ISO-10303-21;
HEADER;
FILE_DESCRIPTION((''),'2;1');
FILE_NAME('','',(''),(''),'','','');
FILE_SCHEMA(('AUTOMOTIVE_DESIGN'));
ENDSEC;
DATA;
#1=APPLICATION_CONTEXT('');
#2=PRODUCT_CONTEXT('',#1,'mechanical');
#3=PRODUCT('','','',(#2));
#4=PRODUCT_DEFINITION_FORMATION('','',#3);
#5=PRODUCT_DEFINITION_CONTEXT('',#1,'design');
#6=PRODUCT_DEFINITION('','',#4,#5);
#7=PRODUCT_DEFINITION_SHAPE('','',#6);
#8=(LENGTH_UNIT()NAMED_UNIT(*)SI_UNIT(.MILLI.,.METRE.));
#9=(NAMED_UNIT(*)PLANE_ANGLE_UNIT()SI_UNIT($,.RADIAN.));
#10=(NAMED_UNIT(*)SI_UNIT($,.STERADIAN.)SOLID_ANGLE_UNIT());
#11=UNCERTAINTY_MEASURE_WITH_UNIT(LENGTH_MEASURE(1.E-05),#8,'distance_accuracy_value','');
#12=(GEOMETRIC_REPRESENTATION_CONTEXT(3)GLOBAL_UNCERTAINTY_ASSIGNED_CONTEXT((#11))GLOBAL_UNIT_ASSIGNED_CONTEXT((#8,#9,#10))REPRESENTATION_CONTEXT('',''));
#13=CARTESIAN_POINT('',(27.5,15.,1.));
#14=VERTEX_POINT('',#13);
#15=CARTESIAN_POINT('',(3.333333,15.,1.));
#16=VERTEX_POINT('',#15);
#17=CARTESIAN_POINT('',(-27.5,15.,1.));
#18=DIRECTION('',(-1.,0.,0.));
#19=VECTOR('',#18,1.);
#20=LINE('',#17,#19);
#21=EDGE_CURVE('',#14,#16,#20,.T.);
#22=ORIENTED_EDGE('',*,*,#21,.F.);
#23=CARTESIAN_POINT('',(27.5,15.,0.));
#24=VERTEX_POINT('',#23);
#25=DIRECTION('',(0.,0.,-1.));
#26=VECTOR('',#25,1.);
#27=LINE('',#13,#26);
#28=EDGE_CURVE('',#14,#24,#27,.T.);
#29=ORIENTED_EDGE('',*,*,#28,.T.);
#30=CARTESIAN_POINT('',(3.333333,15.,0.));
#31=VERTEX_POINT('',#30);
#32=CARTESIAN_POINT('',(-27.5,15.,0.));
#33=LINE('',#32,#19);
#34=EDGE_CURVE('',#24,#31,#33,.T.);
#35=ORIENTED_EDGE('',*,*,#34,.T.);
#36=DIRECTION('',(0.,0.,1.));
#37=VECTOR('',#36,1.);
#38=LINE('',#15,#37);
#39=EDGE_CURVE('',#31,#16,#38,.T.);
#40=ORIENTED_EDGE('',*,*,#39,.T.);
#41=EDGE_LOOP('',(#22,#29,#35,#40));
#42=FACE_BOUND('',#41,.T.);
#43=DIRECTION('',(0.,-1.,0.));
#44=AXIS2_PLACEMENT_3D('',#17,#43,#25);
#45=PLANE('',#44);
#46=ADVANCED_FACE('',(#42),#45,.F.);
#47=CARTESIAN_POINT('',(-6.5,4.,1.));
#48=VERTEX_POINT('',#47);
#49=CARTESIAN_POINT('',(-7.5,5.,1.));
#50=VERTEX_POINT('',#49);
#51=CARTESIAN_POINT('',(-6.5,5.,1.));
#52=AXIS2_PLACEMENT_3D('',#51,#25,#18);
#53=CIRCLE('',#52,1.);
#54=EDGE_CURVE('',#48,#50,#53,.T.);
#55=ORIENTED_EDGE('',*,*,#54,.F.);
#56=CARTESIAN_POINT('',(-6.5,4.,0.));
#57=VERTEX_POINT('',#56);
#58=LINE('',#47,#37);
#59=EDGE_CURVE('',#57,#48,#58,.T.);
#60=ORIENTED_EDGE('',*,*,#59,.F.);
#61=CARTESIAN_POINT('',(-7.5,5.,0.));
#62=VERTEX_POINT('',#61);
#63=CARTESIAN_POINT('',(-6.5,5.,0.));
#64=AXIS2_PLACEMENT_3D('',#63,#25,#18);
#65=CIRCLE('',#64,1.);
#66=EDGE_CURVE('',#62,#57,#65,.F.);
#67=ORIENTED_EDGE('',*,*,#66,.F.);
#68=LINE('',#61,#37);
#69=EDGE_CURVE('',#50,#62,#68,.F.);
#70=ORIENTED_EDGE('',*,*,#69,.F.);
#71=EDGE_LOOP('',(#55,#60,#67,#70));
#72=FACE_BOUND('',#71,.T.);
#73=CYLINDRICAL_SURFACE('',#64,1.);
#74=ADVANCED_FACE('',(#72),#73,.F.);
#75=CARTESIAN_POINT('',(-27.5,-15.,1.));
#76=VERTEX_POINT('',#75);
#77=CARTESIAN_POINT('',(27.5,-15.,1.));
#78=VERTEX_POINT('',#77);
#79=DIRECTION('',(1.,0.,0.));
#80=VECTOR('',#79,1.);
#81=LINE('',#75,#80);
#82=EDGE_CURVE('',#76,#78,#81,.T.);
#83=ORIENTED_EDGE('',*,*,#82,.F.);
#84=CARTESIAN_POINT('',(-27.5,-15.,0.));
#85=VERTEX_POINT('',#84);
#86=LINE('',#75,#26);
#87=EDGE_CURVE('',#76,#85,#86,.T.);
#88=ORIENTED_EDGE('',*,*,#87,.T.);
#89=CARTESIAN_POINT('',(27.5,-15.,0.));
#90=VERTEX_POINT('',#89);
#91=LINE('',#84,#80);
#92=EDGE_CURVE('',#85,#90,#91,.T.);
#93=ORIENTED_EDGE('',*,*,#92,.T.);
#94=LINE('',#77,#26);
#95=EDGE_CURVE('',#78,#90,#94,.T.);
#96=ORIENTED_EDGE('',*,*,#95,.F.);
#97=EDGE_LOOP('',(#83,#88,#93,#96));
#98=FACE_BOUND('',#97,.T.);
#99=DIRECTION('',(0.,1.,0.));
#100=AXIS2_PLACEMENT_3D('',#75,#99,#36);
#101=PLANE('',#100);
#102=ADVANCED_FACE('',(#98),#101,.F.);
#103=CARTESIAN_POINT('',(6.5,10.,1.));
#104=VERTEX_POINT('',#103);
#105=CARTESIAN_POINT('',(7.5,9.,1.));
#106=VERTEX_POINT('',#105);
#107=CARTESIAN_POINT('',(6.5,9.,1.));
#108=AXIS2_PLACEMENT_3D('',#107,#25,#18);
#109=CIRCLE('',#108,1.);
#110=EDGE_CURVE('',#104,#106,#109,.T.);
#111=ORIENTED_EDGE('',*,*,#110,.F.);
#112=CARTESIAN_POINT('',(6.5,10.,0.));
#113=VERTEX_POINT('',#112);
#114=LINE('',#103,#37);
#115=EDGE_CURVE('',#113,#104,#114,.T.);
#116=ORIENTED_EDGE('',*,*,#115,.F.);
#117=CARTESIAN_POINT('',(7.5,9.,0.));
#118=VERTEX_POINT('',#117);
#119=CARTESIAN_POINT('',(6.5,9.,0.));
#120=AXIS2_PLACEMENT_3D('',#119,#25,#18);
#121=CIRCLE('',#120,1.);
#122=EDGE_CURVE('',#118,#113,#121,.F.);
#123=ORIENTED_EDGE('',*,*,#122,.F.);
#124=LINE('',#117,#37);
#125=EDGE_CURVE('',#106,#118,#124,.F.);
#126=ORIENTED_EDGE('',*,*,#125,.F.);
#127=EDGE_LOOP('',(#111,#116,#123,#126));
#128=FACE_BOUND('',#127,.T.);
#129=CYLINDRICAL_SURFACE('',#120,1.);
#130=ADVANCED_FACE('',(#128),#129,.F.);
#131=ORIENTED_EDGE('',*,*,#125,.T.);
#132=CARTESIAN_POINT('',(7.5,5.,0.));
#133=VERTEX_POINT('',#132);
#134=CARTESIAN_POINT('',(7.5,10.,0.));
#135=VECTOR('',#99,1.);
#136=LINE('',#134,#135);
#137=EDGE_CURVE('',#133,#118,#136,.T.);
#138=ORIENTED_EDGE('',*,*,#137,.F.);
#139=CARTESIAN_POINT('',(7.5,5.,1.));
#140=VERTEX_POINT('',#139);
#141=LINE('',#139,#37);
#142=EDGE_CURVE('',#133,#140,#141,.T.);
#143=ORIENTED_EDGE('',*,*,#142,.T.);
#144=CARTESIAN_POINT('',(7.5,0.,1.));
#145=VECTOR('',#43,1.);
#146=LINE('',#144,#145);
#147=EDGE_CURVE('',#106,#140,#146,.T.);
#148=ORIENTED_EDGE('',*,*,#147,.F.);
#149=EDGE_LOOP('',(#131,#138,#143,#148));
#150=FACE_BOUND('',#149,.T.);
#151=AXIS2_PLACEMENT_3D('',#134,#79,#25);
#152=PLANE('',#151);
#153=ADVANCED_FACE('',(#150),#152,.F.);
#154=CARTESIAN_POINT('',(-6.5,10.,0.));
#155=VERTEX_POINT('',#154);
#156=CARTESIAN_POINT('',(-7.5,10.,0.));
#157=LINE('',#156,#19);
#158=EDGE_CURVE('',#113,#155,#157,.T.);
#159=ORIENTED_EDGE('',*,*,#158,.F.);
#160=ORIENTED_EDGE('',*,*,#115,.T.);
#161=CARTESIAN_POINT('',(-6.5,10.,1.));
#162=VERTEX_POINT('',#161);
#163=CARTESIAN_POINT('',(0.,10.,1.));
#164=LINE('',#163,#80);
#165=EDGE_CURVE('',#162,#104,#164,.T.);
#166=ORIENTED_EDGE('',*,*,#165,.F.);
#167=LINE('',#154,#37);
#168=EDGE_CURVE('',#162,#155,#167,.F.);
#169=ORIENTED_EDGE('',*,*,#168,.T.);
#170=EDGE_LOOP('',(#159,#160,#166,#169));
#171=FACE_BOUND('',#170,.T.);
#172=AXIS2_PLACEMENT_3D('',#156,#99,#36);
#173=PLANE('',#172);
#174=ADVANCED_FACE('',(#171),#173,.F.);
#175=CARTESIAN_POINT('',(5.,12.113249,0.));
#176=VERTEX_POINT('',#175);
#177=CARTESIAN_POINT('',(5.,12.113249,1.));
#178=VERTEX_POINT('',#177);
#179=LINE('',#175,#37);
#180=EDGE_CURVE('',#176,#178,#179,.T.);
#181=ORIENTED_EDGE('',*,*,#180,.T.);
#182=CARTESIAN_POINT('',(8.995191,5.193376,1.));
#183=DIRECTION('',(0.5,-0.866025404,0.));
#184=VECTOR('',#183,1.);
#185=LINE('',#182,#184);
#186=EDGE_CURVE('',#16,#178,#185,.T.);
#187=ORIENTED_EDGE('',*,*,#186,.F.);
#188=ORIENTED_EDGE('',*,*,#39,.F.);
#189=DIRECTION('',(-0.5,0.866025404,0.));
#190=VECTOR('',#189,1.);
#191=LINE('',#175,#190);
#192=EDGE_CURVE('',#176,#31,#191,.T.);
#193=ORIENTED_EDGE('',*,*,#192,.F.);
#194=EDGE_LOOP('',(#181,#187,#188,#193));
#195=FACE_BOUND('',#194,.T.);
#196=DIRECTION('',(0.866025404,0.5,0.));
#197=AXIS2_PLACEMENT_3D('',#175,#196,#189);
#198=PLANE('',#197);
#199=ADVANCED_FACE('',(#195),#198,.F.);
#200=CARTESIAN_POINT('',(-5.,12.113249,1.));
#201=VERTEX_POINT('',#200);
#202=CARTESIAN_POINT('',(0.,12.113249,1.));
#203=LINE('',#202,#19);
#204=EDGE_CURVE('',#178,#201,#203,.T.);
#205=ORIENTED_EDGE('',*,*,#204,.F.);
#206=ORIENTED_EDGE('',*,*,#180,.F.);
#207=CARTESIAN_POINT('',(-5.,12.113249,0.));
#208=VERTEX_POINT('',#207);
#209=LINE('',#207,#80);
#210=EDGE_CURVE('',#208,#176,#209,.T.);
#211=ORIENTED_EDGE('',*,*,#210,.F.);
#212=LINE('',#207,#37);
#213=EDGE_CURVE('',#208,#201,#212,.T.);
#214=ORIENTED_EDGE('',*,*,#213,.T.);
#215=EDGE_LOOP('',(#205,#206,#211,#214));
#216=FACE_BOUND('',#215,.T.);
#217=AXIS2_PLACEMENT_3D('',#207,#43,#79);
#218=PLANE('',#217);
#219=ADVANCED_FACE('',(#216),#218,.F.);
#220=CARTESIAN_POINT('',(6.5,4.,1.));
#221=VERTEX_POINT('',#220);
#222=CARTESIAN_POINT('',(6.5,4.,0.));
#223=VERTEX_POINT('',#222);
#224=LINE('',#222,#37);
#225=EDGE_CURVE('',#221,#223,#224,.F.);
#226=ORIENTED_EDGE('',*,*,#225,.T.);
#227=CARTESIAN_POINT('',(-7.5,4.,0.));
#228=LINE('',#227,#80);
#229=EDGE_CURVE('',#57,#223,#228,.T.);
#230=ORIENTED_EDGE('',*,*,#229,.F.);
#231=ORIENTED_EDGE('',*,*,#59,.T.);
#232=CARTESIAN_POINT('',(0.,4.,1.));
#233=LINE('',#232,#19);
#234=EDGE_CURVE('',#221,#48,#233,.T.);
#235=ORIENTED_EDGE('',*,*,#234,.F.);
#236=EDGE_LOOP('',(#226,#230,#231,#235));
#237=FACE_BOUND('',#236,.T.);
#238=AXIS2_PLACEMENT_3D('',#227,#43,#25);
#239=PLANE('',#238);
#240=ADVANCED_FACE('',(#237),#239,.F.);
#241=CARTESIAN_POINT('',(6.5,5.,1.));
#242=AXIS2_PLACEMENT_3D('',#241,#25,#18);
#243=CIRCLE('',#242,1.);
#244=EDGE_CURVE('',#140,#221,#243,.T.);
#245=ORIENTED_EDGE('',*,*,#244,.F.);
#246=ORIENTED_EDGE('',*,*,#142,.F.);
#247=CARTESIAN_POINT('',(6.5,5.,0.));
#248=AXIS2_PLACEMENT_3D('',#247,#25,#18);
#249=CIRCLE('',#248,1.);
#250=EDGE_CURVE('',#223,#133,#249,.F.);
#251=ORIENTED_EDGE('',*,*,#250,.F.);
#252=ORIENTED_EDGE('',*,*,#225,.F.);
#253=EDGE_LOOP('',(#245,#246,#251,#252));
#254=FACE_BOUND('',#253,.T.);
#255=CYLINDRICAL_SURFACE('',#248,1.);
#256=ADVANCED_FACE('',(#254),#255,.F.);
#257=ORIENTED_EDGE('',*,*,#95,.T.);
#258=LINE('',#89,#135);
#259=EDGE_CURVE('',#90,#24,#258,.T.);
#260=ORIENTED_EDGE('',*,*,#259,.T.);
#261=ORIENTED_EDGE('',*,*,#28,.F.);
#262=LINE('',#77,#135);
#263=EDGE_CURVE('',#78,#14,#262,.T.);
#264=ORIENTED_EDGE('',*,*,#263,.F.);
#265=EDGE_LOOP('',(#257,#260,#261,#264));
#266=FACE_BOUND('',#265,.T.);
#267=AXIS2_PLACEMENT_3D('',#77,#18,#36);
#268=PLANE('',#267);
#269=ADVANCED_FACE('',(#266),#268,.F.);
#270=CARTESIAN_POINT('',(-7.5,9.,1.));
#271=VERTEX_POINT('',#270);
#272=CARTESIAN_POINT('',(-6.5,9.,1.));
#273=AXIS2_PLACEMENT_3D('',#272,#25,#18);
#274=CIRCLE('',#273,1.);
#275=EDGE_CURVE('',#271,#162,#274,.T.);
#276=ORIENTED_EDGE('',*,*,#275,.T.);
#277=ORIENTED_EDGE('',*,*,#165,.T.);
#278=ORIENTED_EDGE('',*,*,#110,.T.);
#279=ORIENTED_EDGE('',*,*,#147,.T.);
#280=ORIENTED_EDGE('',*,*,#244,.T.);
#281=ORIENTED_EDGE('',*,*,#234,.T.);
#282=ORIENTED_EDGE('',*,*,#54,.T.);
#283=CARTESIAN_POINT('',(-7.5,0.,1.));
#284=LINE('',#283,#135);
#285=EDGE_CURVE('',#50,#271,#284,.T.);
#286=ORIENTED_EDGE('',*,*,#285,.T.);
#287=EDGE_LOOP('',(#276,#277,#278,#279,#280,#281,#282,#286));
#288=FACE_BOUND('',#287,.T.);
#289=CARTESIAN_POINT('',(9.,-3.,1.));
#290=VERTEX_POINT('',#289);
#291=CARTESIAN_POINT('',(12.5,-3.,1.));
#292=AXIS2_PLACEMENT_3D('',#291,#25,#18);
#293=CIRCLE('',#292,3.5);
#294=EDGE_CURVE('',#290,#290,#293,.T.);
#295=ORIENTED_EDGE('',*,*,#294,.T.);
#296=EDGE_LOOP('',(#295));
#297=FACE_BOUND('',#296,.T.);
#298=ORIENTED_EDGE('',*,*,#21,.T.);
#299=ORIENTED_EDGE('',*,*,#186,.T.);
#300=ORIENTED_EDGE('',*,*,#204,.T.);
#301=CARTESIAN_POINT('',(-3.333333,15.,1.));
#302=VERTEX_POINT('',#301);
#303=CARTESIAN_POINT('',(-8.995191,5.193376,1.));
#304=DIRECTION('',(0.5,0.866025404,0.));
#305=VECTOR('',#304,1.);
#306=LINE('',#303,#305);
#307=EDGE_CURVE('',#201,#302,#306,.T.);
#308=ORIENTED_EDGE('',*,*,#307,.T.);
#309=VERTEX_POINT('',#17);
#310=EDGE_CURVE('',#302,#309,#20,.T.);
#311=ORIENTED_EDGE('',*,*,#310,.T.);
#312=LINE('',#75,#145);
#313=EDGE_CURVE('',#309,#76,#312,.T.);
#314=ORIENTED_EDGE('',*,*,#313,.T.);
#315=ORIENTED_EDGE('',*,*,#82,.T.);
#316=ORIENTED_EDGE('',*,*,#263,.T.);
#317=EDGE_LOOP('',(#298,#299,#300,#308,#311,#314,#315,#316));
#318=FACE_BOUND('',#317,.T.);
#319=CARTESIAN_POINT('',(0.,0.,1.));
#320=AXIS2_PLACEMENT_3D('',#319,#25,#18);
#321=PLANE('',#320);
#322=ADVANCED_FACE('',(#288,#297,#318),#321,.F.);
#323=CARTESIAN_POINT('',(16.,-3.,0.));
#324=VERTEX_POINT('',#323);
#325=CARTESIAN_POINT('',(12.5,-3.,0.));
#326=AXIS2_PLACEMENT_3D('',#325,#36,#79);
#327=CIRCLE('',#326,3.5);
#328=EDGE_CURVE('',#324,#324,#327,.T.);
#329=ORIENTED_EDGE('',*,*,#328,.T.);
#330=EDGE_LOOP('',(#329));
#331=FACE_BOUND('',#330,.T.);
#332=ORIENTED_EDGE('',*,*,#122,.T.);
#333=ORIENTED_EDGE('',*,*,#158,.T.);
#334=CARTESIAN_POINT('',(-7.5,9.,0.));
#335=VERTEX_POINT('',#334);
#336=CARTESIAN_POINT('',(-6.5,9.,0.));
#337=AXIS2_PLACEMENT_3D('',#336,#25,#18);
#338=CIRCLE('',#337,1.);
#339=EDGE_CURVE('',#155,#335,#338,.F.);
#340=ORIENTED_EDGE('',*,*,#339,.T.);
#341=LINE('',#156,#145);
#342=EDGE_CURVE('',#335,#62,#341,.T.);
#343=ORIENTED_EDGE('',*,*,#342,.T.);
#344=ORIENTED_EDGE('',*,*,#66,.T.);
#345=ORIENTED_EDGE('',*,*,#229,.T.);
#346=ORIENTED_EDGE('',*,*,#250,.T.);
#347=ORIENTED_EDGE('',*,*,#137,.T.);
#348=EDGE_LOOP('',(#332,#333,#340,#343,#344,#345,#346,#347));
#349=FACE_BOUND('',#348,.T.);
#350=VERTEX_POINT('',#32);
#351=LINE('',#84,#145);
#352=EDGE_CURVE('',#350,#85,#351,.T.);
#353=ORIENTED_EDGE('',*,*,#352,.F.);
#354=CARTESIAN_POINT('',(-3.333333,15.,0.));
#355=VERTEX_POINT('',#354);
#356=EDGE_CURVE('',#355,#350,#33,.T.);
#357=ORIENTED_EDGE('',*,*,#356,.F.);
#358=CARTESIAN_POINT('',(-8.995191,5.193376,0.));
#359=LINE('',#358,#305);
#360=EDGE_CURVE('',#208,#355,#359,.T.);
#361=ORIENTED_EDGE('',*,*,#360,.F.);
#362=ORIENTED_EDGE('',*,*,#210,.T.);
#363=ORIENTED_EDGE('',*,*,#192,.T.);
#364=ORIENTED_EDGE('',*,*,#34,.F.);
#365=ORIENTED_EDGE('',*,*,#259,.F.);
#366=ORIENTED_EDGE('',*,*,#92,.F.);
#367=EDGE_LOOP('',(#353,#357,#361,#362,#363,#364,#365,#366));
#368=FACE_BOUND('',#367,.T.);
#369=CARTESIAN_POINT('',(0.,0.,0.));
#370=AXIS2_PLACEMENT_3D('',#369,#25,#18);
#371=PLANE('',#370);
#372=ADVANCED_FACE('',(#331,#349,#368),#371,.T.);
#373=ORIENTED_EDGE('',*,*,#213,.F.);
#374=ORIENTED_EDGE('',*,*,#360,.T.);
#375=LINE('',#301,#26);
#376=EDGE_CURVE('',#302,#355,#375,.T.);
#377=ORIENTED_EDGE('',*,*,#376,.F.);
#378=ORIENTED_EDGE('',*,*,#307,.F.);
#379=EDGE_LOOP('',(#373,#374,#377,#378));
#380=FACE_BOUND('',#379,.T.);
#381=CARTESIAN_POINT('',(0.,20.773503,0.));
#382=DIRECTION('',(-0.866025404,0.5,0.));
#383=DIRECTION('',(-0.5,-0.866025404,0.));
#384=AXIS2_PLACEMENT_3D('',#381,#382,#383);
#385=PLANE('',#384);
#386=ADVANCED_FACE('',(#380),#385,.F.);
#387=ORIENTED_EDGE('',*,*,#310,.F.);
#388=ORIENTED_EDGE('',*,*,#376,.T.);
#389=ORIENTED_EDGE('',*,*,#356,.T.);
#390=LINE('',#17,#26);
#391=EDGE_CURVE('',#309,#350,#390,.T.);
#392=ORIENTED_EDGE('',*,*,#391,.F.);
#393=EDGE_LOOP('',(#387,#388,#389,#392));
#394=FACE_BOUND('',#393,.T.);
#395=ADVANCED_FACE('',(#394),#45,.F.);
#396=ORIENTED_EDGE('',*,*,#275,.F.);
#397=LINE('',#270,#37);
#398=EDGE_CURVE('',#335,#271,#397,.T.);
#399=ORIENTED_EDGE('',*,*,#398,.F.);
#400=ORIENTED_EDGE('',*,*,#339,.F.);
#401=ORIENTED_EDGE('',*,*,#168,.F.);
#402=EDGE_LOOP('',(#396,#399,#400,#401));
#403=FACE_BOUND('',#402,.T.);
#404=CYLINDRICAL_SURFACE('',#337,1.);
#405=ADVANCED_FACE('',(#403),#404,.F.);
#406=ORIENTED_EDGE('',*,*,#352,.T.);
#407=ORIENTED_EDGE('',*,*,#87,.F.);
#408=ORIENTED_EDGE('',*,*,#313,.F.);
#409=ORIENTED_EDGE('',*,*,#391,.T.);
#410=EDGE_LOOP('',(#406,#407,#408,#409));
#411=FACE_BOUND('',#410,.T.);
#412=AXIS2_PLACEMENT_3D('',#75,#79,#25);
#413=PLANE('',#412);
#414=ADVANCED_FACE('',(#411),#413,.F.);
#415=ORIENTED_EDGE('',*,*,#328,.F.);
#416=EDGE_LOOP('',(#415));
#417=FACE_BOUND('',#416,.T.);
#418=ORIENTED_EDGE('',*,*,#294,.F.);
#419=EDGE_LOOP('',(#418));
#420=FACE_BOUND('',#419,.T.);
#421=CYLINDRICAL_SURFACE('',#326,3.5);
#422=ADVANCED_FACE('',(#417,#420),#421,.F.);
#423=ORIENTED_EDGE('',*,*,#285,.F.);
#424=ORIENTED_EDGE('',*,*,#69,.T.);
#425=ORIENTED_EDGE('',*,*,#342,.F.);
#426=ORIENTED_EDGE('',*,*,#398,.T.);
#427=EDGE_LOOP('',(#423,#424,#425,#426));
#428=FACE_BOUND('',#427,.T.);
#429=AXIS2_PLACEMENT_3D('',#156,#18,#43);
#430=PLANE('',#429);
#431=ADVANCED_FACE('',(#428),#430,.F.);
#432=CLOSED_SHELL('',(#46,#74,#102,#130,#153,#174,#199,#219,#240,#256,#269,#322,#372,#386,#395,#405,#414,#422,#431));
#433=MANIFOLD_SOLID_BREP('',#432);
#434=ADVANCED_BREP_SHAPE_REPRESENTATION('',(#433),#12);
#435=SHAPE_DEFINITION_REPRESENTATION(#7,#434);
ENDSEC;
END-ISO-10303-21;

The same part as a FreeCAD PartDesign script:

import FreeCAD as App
import Part
import Sketcher

V = App.Vector
Q = App.Units.Quantity


def edges_at(feature, points):
    """Names of the edges that pass closest to the given points."""
    edges = feature.Shape.Edges
    near = lambda p: min(range(len(edges)), key=lambda i: edges[i].distToShape(Part.Vertex(*p))[0])
    return sorted({f"Edge{near(p) + 1}" for p in points})

doc = App.newDocument("Part")
params = doc.addObject("Spreadsheet::Sheet", "Params")
for row, (alias, value) in enumerate([
    ("sketch1_width", "55 mm"),
    ("sketch1_height", "30 mm"),
    ("pad1_length", "1 mm"),
    ("sketch2_diameter", "7 mm"),
    ("sketch2_width", "15 mm"),
    ("sketch2_width2", "10 mm"),
    ("sketch2_height", "6 mm"),
    ("fillet_radius", "1 mm"),
], start=1):
    params.set(f"A{row}", alias)
    params.set(f"B{row}", "=" + value)
    params.setAlias(f"B{row}", alias)

body = doc.addObject("PartDesign::Body", "Body")

# Sketch on XY plane
sketch1 = body.newObject("Sketcher::SketchObject", "Sketch")
sketch1.AttachmentSupport = (doc.getObject("XY_Plane"), [""])
sketch1.MapMode = "FlatFace"
sketch1.addGeometry([
    Part.LineSegment(V(-28, 15, 0), V(-28, -15, 0)),
    Part.LineSegment(V(-28, -15, 0), V(28, -15, 0)),
    Part.LineSegment(V(28, -15, 0), V(28, 15, 0)),
    Part.LineSegment(V(28, 15, 0), V(-28, 15, 0)),
], False)
sketch1.addConstraint([
    Sketcher.Constraint("Coincident", 0, 2, 1, 1),
    Sketcher.Constraint("Coincident", 1, 2, 2, 1),
    Sketcher.Constraint("Coincident", 2, 2, 3, 1),
    Sketcher.Constraint("Coincident", 3, 2, 0, 1),
    Sketcher.Constraint("Vertical", 0),
    Sketcher.Constraint("Horizontal", 1),
    Sketcher.Constraint("Vertical", 2),
    Sketcher.Constraint("Horizontal", 3),
    Sketcher.Constraint("Symmetric", 0, 2, 2, 2, -1, 1),
    Sketcher.Constraint("DistanceX", 1, 1, 1, 2, Q("55 mm")),
    Sketcher.Constraint("DistanceY", 0, 2, 0, 1, Q("30 mm")),
])
sketch1.setExpression("Constraints[9]", "Params.sketch1_width")
sketch1.setExpression("Constraints[10]", "Params.sketch1_height")
pad1 = body.newObject("PartDesign::Pad", "Pad")
pad1.Profile = sketch1
pad1.setExpression("Length", "Params.pad1_length")

# Sketch on XY plane
sketch2 = body.newObject("Sketcher::SketchObject", "Sketch001")
sketch2.AttachmentSupport = (doc.getObject("XY_Plane"), [""])
sketch2.MapMode = "FlatFace"
sketch2.AttachmentOffset = App.Placement(V(0, 0, 1), App.Rotation())
sketch2.addGeometry([
    Part.Circle(V(12.5, -3, 0), V(0, 0, 1), 3.5),  # 0
    Part.LineSegment(V(-7.5, 10, 0), V(-7.5, 4, 0)),  # 1
    Part.LineSegment(V(-7.5, 4, 0), V(7.5, 4, 0)),  # 2
    Part.LineSegment(V(7.5, 4, 0), V(7.5, 10, 0)),  # 3
    Part.LineSegment(V(7.5, 10, 0), V(-7.5, 10, 0)),  # 4
    Part.LineSegment(V(0, 20.8, 0), V(-5, 12.1, 0)),  # 5
    Part.LineSegment(V(-5, 12.1, 0), V(5, 12.1, 0)),  # 6
    Part.LineSegment(V(5, 12.1, 0), V(0, 20.8, 0)),  # 7
], False)
sketch2.addConstraint([
    Sketcher.Constraint("Coincident", 1, 2, 2, 1),
    Sketcher.Constraint("Coincident", 2, 2, 3, 1),
    Sketcher.Constraint("Coincident", 3, 2, 4, 1),
    Sketcher.Constraint("Coincident", 4, 2, 1, 1),
    Sketcher.Constraint("Coincident", 5, 2, 6, 1),
    Sketcher.Constraint("Coincident", 6, 2, 7, 1),
    Sketcher.Constraint("Coincident", 7, 2, 5, 1),
    Sketcher.Constraint("Vertical", 1),
    Sketcher.Constraint("Horizontal", 2),
    Sketcher.Constraint("Vertical", 3),
    Sketcher.Constraint("Horizontal", 4),
    Sketcher.Constraint("Horizontal", 6),
    Sketcher.Constraint("PointOnObject", 7, 2, -2),
    Sketcher.Constraint("Equal", 5, 7),
    Sketcher.Constraint("Diameter", 0, Q("7 mm")),
    Sketcher.Constraint("DistanceX", 2, 1, 2, 2, Q("15 mm")),
    Sketcher.Constraint("DistanceX", 6, 1, 6, 2, Q("10 mm")),
    Sketcher.Constraint("DistanceY", 1, 2, 1, 1, Q("6 mm")),
    Sketcher.Constraint("Angle", 5, Q("-120 deg")),
    Sketcher.Constraint("DistanceY", 0, 3, -1, 1, Q("3 mm")),
    Sketcher.Constraint("DistanceY", -1, 1, 1, 2, Q("4 mm")),
    Sketcher.Constraint("DistanceX", 1, 2, 0, 3, Q("20 mm")),
    Sketcher.Constraint("DistanceX", -1, 1, 0, 3, Q("12.5 mm")),
    Sketcher.Constraint("DistanceY", -1, 1, 5, 2, Q("12.113249 mm")),
])
sketch2.setExpression("Constraints[14]", "Params.sketch2_diameter")
sketch2.setExpression("Constraints[15]", "Params.sketch2_width")
sketch2.setExpression("Constraints[16]", "Params.sketch2_width2")
sketch2.setExpression("Constraints[17]", "Params.sketch2_height")
pocket1 = body.newObject("PartDesign::Pocket", "Pocket")
pocket1.Profile = sketch2
pocket1.Type = "ThroughAll"
pocket1.Midplane = True
doc.recompute()

fillet = body.newObject("PartDesign::Fillet", "Fillet")
fillet.Base = (pocket1, edges_at(pocket1, [
    (-7.5, 4, 0.5),
    (-7.5, 10, 0.5),
    (7.5, 10, 0.5),
    (7.5, 4, 0.5),
]))
fillet.setExpression("Radius", "Params.fillet_radius")

doc.recompute()
